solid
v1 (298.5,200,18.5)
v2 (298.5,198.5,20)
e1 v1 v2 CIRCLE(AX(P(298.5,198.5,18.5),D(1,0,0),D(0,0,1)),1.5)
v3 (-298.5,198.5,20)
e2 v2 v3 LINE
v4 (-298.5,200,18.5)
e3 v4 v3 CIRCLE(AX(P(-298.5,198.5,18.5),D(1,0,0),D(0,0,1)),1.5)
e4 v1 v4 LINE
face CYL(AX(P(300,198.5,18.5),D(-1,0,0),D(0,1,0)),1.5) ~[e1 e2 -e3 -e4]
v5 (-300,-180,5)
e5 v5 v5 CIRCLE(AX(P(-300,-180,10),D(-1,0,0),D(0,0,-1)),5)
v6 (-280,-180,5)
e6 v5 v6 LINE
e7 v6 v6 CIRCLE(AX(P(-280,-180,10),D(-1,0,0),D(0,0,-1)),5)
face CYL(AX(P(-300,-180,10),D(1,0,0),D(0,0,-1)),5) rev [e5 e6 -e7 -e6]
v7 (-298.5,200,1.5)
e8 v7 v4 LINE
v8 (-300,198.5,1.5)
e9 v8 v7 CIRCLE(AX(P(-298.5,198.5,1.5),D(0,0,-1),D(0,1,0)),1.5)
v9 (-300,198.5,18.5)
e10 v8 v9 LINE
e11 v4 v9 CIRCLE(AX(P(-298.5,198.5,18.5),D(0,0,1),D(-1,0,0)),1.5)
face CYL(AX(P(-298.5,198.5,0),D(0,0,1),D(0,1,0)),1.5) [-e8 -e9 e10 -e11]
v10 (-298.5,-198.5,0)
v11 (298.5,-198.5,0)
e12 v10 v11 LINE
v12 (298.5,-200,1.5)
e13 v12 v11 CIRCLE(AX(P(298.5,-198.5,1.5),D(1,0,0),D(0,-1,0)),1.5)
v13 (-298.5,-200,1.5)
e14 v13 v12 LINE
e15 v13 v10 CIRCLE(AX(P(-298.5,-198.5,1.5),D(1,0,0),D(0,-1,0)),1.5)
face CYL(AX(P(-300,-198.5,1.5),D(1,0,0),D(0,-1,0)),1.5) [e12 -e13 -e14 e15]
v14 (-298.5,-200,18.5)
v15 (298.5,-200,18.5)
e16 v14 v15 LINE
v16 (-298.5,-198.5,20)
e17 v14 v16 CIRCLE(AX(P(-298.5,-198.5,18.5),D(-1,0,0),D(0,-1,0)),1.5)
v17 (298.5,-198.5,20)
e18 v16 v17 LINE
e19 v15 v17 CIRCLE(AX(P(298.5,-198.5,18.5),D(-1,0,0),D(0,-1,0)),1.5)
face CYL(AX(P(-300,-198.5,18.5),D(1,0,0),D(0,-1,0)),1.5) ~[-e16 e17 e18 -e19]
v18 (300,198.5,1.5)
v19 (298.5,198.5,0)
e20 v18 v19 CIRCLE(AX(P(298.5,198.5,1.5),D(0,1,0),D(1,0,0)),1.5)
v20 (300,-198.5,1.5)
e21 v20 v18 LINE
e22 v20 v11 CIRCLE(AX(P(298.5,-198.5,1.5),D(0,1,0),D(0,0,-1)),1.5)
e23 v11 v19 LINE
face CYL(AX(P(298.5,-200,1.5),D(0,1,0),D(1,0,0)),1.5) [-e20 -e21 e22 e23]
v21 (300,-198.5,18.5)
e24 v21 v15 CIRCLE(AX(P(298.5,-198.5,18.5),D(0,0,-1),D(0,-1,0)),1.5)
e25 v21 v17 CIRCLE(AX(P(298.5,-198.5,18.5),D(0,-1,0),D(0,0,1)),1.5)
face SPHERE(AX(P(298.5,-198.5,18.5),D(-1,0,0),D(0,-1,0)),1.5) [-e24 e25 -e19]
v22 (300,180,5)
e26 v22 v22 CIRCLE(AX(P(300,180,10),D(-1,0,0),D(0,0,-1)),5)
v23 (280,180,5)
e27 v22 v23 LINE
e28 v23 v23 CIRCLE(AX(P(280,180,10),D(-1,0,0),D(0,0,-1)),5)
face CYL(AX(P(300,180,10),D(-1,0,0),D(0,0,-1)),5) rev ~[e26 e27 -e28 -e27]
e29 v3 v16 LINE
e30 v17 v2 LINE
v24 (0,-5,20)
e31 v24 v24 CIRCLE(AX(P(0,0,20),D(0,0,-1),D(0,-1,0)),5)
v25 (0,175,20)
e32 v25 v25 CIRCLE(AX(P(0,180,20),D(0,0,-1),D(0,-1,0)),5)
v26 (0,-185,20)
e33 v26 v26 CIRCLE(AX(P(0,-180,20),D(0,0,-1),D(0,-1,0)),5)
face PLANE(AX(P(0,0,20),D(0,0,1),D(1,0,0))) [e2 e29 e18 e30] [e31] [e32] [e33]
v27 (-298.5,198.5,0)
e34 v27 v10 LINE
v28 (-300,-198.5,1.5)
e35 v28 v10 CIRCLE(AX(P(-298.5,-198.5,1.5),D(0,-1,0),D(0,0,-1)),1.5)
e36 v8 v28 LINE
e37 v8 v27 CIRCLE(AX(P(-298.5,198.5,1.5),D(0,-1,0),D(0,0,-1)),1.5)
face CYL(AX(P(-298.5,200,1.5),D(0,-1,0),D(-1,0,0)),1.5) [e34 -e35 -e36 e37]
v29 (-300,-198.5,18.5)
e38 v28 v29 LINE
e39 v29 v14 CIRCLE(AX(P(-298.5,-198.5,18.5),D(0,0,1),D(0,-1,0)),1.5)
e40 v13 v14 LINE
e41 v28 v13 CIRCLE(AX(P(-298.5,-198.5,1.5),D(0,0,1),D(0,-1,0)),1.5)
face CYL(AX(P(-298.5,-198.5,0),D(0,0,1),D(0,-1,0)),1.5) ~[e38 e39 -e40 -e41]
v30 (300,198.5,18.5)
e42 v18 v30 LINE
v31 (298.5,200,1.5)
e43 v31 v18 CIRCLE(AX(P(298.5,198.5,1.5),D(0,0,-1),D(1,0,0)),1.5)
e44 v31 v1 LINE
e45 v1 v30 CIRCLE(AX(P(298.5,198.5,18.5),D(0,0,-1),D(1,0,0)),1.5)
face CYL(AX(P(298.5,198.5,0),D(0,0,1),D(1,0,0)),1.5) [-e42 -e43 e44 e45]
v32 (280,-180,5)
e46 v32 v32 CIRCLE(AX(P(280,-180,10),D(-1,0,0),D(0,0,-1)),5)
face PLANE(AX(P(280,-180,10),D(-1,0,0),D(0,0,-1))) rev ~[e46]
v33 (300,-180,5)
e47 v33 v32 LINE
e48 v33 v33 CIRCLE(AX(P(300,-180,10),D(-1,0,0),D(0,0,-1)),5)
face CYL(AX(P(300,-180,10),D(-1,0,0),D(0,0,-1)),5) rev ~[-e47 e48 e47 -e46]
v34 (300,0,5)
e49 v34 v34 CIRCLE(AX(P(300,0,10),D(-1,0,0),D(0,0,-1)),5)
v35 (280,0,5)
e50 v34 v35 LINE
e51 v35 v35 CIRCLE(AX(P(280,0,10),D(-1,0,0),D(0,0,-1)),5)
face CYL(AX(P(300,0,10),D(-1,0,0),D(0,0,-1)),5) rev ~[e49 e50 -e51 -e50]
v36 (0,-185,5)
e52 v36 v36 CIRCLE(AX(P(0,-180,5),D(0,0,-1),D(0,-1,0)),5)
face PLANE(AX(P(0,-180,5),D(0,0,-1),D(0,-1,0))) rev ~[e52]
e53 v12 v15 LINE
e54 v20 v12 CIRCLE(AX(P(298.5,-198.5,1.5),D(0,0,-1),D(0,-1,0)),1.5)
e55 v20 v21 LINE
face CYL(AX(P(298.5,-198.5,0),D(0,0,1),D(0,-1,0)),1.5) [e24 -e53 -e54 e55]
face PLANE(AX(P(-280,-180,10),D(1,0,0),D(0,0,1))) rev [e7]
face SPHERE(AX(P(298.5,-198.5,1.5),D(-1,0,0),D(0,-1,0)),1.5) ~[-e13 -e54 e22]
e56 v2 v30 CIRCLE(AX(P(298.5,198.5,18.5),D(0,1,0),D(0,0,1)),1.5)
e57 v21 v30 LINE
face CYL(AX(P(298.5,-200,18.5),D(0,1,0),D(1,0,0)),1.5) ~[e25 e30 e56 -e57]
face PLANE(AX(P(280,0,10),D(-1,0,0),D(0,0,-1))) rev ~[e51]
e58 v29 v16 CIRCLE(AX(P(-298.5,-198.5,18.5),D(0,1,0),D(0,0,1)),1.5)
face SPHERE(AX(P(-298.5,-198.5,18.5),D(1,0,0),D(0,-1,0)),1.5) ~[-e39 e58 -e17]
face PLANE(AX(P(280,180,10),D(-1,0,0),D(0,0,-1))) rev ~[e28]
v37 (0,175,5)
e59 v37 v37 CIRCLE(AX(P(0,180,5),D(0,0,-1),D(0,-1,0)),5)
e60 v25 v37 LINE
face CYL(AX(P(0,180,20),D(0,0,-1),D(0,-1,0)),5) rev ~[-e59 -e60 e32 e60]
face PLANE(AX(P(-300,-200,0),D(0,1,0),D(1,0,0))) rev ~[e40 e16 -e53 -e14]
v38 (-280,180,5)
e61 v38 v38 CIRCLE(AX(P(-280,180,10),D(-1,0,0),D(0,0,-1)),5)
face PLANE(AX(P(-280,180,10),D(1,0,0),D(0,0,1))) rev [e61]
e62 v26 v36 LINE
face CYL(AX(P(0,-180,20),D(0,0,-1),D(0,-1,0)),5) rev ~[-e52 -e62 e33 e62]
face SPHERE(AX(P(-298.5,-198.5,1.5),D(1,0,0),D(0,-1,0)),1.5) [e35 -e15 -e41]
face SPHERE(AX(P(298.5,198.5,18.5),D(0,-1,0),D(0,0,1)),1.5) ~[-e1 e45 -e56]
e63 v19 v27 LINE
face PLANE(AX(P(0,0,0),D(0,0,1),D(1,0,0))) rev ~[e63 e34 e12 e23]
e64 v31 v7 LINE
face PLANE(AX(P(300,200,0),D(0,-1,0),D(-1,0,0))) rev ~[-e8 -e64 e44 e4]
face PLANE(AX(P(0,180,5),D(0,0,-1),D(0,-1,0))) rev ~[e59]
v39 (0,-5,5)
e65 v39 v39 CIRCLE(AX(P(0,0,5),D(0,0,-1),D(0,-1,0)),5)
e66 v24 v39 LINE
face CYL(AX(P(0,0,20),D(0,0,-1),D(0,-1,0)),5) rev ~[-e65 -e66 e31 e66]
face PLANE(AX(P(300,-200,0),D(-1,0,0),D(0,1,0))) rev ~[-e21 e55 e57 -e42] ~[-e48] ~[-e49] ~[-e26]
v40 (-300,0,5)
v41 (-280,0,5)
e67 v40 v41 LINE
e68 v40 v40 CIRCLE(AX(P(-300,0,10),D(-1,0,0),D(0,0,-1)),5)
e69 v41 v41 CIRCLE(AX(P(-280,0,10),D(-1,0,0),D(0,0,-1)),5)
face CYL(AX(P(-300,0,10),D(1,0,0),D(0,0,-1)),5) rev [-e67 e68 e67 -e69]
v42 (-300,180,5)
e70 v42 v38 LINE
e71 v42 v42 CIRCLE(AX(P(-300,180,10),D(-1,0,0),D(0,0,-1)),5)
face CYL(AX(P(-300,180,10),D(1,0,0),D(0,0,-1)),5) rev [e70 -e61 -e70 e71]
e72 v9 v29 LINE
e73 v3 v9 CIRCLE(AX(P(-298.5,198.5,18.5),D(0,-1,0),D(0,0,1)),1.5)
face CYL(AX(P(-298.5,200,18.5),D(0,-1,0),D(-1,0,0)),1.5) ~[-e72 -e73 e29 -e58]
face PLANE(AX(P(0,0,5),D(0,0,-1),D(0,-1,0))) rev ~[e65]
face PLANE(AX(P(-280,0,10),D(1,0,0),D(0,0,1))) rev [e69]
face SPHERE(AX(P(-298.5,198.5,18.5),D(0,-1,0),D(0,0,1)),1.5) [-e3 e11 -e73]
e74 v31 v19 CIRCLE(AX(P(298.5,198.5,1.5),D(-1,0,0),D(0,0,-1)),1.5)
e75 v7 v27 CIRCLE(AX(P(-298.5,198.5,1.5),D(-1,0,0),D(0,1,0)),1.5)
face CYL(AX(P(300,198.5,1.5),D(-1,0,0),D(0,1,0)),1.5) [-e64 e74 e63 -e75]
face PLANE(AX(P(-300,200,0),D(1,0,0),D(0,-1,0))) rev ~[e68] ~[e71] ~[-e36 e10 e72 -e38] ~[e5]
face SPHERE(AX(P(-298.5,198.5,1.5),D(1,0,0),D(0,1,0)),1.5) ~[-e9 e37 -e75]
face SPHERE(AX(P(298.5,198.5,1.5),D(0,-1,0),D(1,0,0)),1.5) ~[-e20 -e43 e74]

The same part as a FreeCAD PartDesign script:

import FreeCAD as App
import Part
import Sketcher

V = App.Vector

doc = App.newDocument("Part")
body = doc.addObject("PartDesign::Body", "Body")

sketch1 = body.newObject("Sketcher::SketchObject", "Sketch")
sketch1.AttachmentSupport = (doc.getObject("XY_Plane"), [""])
sketch1.MapMode = "FlatFace"
sketch1.addGeometry([
    Part.LineSegment(V(-300, 200, 0), V(-300, -200, 0)),
    Part.LineSegment(V(-300, -200, 0), V(300, -200, 0)),
    Part.LineSegment(V(300, -200, 0), V(300, 200, 0)),
    Part.LineSegment(V(300, 200, 0), V(-300, 200, 0)),
], False)
sketch1.addConstraint([
    Sketcher.Constraint("Coincident", 0, 2, 1, 1),
    Sketcher.Constraint("Coincident", 1, 2, 2, 1),
    Sketcher.Constraint("Coincident", 2, 2, 3, 1),
    Sketcher.Constraint("Coincident", 3, 2, 0, 1),
    Sketcher.Constraint("Vertical", 0),
    Sketcher.Constraint("Horizontal", 1),
    Sketcher.Constraint("Vertical", 2),
    Sketcher.Constraint("Horizontal", 3),
    Sketcher.Constraint("Symmetric", 0, 2, 2, 2, -1, 1),
    Sketcher.Constraint("DistanceX", 1, 1, 1, 2, 600.0),
    Sketcher.Constraint("DistanceY", 0, 2, 0, 1, 400.0),
])
pad1 = body.newObject("PartDesign::Pad", "Pad")
pad1.Profile = sketch1
pad1.Length = 20
doc.recompute()

fillet = body.newObject("PartDesign::Fillet", "Fillet")
fillet.Base = (pad1, ["Edge1"])
fillet.UseAllEdges = True
fillet.Radius = 1.5

sketch2 = body.newObject("Sketcher::SketchObject", "Sketch001")
sketch2.AttachmentSupport = (doc.getObject("XY_Plane"), [""])
sketch2.MapMode = "FlatFace"
sketch2.AttachmentOffset = App.Placement(V(0, 0, 20), App.Rotation())
sketch2.addGeometry(Part.Circle(V(0, -180, 0), V(0, 0, 1), 5), False)
sketch2.addConstraint([
    Sketcher.Constraint("PointOnObject", 0, 3, -2),
    Sketcher.Constraint("Diameter", 0, 10.0),
    Sketcher.Constraint("DistanceY", 0, 3, -1, 1, 180.0),
])
doc.recompute()
hole = body.newObject("PartDesign::Hole", "Hole")
hole.Profile = sketch2
hole.ThreadType = "None"
hole.Diameter = 10
hole.DepthType = "Dimension"
hole.Depth = 15
hole.DrillPoint = "Flat"

sketch3 = body.newObject("Sketcher::SketchObject", "Sketch002")
sketch3.AttachmentSupport = (doc.getObject("XY_Plane"), [""])
sketch3.MapMode = "FlatFace"
sketch3.AttachmentOffset = App.Placement(V(0, 0, 20), App.Rotation())
sketch3.addGeometry(Part.Circle(V(0, 0, 0), V(0, 0, 1), 5), False)
sketch3.addConstraint([
    Sketcher.Constraint("Coincident", 0, 3, -1, 1),
    Sketcher.Constraint("Diameter", 0, 10.0),
])
doc.recompute()
hole2 = body.newObject("PartDesign::Hole", "Hole001")
hole2.Profile = sketch3
hole2.ThreadType = "None"
hole2.Diameter = 10
hole2.DepthType = "Dimension"
hole2.Depth = 15
hole2.DrillPoint = "Flat"

sketch4 = body.newObject("Sketcher::SketchObject", "Sketch003")
sketch4.AttachmentSupport = (doc.getObject("XY_Plane"), [""])
sketch4.MapMode = "FlatFace"
sketch4.AttachmentOffset = App.Placement(V(0, 0, 20), App.Rotation())
sketch4.addGeometry(Part.Circle(V(0, 180, 0), V(0, 0, 1), 5), False)
sketch4.addConstraint([
    Sketcher.Constraint("PointOnObject", 0, 3, -2),
    Sketcher.Constraint("Diameter", 0, 10.0),
    Sketcher.Constraint("DistanceY", -1, 1, 0, 3, 180.0),
])
doc.recompute()
hole3 = body.newObject("PartDesign::Hole", "Hole002")
hole3.Profile = sketch4
hole3.ThreadType = "None"
hole3.Diameter = 10
hole3.DepthType = "Dimension"
hole3.Depth = 15
hole3.DrillPoint = "Flat"

sketch5 = body.newObject("Sketcher::SketchObject", "Sketch004")
sketch5.AttachmentSupport = (doc.getObject("YZ_Plane"), [""])
sketch5.MapMode = "FlatFace"
sketch5.AttachmentOffset = App.Placement(V(0, 0, 300), App.Rotation())
sketch5.addGeometry(Part.Circle(V(0, 10, 0), V(0, 0, 1), 5), False)
sketch5.addConstraint([
    Sketcher.Constraint("PointOnObject", 0, 3, -2),
    Sketcher.Constraint("Diameter", 0, 10.0),
    Sketcher.Constraint("DistanceY", -1, 1, 0, 3, 10.0),
])
doc.recompute()
hole4 = body.newObject("PartDesign::Hole", "Hole003")
hole4.Profile = sketch5
hole4.ThreadType = "None"
hole4.Diameter = 10
hole4.DepthType = "Dimension"
hole4.Depth = 20
hole4.DrillPoint = "Flat"

sketch6 = body.newObject("Sketcher::SketchObject", "Sketch005")
sketch6.AttachmentSupport = (doc.getObject("YZ_Plane"), [""])
sketch6.MapMode = "FlatFace"
sketch6.AttachmentOffset = App.Placement(V(0, 0, 300), App.Rotation())
sketch6.addGeometry(Part.Circle(V(180, 10, 0), V(0, 0, 1), 5), False)
sketch6.addConstraint([
    Sketcher.Constraint("Diameter", 0, 10.0),
    Sketcher.Constraint("DistanceX", -1, 1, 0, 3, 180.0),
    Sketcher.Constraint("DistanceY", -1, 1, 0, 3, 10.0),
])
doc.recompute()
hole5 = body.newObject("PartDesign::Hole", "Hole004")
hole5.Profile = sketch6
hole5.ThreadType = "None"
hole5.Diameter = 10
hole5.DepthType = "Dimension"
hole5.Depth = 20
hole5.DrillPoint = "Flat"

sketch7 = body.newObject("Sketcher::SketchObject", "Sketch006")
sketch7.AttachmentSupport = (doc.getObject("YZ_Plane"), [""])
sketch7.MapMode = "FlatFace"
sketch7.AttachmentOffset = App.Placement(V(0, 0, 300), App.Rotation())
sketch7.addGeometry(Part.Circle(V(-180, 10, 0), V(0, 0, 1), 5), False)
sketch7.addConstraint([
    Sketcher.Constraint("Diameter", 0, 10.0),
    Sketcher.Constraint("DistanceX", 0, 3, -1, 1, 180.0),
    Sketcher.Constraint("DistanceY", -1, 1, 0, 3, 10.0),
])
doc.recompute()
hole6 = body.newObject("PartDesign::Hole", "Hole005")
hole6.Profile = sketch7
hole6.ThreadType = "None"
hole6.Diameter = 10
hole6.DepthType = "Dimension"
hole6.Depth = 20
hole6.DrillPoint = "Flat"
doc.recompute()

mirrored = body.newObject("PartDesign::Mirrored", "Mirrored")
mirrored.Originals = [hole4, hole5, hole6]
mirrored.MirrorPlane = (doc.getObject("YZ_Plane"), [""])
body.Tip = mirrored

doc.recompute()
